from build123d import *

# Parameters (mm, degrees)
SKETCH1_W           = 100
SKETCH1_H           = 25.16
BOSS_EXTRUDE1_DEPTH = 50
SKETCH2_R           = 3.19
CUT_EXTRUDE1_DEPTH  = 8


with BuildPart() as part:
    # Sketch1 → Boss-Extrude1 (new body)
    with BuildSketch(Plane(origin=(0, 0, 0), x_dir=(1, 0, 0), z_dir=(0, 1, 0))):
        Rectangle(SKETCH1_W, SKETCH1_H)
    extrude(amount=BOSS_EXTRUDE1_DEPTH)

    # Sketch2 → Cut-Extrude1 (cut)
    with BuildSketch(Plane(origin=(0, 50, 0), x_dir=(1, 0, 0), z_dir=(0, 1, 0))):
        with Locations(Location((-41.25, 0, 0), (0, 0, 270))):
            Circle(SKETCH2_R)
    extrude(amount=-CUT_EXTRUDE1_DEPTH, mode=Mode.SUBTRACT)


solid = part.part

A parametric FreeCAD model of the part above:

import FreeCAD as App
import Part
import Sketcher
Q = App.Units.Quantity


def add_polygon(sketch, points):
    """Adds a closed chain of lines whose ends are joined by coincident constraints."""
    first, n = sketch.GeometryCount, len(points)
    for a, b in zip(points, points[1:] + points[:1]):
        sketch.addGeometry(Part.LineSegment(App.Vector(*a, 0), App.Vector(*b, 0)), False)
    for i in range(n):
        sketch.addConstraint(Sketcher.Constraint("Coincident", first + i, 2, first + (i + 1) % n, 1))

doc = App.newDocument("Part")
params = doc.addObject("Spreadsheet::Sheet", "Params")
for row, (alias, value) in enumerate([
    ("sketch1_width", "100 mm"),
    ("sketch1_height", "25.16 mm"),
    ("pad1_length", "50 mm"),
    ("sketch2_diameter", "6.38 mm"),
    ("pocket1_length", "8 mm"),
], start=1):
    params.set(f"A{row}", alias)
    params.set(f"B{row}", "=" + value)
    params.setAlias(f"B{row}", alias)

body = doc.addObject("PartDesign::Body", "Body")

# Sketch on XZ plane
sketch1 = body.newObject("Sketcher::SketchObject", "Sketch")
sketch1.AttachmentSupport = (doc.getObject("XZ_Plane"), [""])
sketch1.MapMode = "FlatFace"
add_polygon(sketch1, [(-50, -13), (-50, 13), (50, 13), (50, -13)])  # lines 0-3
sketch1.addConstraint(Sketcher.Constraint("Vertical", 0))
sketch1.addConstraint(Sketcher.Constraint("Horizontal", 1))
sketch1.addConstraint(Sketcher.Constraint("Vertical", 2))
sketch1.addConstraint(Sketcher.Constraint("Horizontal", 3))
sketch1.addConstraint(Sketcher.Constraint("Symmetric", 0, 2, 2, 2, -1, 1))
sketch1.addConstraint(Sketcher.Constraint("DistanceX", 1, 1, 1, 2, Q("100 mm")))
sketch1.addConstraint(Sketcher.Constraint("DistanceY", 0, 1, 0, 2, Q("25.16 mm")))
sketch1.setExpression("Constraints[9]", "Params.sketch1_width")
sketch1.setExpression("Constraints[10]", "Params.sketch1_height")
pad1 = body.newObject("PartDesign::Pad", "Pad")
pad1.Profile = sketch1
pad1.setExpression("Length", "Params.pad1_length")
pad1.Reversed = True

# Sketch on XZ plane
sketch2 = body.newObject("Sketcher::SketchObject", "Sketch001")
sketch2.AttachmentSupport = (doc.getObject("XZ_Plane"), [""])
sketch2.MapMode = "FlatFace"
sketch2.AttachmentOffset = App.Placement(App.Vector(0, 0, -50), App.Rotation())
sketch2.addGeometry(Part.Circle(App.Vector(-41.2, 0, 0), App.Vector(0, 0, 1), 3.2), False)
sketch2.addConstraint(Sketcher.Constraint("PointOnObject", 0, 3, -1))
sketch2.addConstraint(Sketcher.Constraint("Diameter", 0, Q("6.38 mm")))
sketch2.addConstraint(Sketcher.Constraint("DistanceX", 0, 3, -1, 1, Q("41.25 mm")))
sketch2.setExpression("Constraints[1]", "Params.sketch2_diameter")
pocket1 = body.newObject("PartDesign::Pocket", "Pocket")
pocket1.Profile = sketch2
pocket1.setExpression("Length", "Params.pocket1_length")
pocket1.Reversed = True

doc.recompute()
